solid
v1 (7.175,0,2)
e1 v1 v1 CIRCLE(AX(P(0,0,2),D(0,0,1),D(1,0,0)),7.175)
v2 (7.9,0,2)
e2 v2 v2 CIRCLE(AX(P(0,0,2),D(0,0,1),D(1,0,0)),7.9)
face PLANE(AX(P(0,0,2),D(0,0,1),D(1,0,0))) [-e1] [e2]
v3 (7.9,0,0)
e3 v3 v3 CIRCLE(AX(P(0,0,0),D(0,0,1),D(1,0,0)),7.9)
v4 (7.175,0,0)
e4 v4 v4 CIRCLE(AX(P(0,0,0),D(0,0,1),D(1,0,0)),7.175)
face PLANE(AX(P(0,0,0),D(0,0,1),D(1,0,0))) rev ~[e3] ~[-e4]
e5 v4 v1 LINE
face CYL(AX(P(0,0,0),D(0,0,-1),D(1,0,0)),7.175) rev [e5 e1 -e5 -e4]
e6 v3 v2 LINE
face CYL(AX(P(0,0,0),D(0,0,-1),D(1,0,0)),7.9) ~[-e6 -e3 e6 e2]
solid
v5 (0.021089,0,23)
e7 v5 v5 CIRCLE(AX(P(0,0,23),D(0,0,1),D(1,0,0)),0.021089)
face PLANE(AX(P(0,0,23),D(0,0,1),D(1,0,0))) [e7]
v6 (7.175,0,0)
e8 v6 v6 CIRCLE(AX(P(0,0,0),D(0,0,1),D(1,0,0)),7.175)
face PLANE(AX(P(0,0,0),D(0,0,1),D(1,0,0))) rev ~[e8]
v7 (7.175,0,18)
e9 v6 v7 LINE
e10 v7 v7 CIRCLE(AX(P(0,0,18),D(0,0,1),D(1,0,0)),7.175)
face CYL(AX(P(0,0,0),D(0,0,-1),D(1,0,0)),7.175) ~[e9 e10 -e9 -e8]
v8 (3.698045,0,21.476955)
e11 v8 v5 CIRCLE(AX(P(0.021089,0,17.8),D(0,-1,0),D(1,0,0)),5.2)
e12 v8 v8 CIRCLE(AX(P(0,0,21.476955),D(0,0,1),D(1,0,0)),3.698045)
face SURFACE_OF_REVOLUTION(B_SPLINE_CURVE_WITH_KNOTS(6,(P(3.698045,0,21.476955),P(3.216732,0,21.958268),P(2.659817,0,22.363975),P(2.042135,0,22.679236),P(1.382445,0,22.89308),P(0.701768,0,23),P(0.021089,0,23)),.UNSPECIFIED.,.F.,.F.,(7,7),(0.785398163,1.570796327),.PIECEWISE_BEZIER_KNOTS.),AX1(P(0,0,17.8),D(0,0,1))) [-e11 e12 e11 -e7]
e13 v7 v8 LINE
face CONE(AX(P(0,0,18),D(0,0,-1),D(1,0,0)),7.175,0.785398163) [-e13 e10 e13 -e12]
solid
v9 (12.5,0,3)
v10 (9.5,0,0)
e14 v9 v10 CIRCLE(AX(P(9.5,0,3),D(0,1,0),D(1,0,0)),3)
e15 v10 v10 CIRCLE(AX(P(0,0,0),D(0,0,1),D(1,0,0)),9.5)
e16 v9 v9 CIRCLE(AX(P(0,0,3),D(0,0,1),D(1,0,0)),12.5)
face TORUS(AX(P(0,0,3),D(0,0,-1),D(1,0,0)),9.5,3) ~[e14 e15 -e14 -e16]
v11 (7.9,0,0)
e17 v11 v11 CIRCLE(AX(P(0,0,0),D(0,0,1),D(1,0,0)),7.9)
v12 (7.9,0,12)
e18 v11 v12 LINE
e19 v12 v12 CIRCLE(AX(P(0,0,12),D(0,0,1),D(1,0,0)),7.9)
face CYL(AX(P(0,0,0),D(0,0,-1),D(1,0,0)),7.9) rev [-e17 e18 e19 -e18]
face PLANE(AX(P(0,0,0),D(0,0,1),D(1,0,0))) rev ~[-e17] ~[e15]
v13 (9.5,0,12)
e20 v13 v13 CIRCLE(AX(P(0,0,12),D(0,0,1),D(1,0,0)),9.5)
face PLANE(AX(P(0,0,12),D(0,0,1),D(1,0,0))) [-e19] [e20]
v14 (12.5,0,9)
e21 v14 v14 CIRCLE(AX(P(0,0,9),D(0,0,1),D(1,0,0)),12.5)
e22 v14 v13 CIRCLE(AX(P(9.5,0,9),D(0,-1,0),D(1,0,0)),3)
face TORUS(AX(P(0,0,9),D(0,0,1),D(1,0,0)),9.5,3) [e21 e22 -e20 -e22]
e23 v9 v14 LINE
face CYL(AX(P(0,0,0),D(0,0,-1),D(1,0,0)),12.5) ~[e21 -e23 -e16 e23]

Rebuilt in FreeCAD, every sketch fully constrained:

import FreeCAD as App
import Part
import Sketcher
Q = App.Units.Quantity


def edges_at(feature, points):
    """Names of the edges that pass closest to the given points."""
    edges = feature.Shape.Edges
    near = lambda p: min(range(len(edges)), key=lambda i: edges[i].distToShape(Part.Vertex(*p))[0])
    return sorted({f"Edge{near(p) + 1}" for p in points})

doc = App.newDocument("Part")
body = doc.addObject("PartDesign::Body", "Body")

sketch1 = body.newObject("Sketcher::SketchObject", "Sketch")
sketch1.AttachmentSupport = (doc.getObject("XY_Plane"), [""])
sketch1.MapMode = "FlatFace"
sketch1.addGeometry([
    Part.Circle(App.Vector(0, 0, 0), App.Vector(0, 0, 1), 12),
    Part.Circle(App.Vector(0, 0, 0), App.Vector(0, 0, 1), 8),
], False)
sketch1.addConstraint([
    Sketcher.Constraint("Coincident", 0, 3, -1, 1),
    Sketcher.Constraint("Coincident", 1, 3, -1, 1),
    Sketcher.Constraint("Diameter", 0, Q("25 mm")),
    Sketcher.Constraint("Diameter", 1, Q("15.8 mm")),
])
pad1 = body.newObject("PartDesign::Pad", "Pad")
pad1.Profile = sketch1
pad1.Length = 12
doc.recompute()

fillet = body.newObject("PartDesign::Fillet", "Fillet")
fillet.Base = (pad1, edges_at(pad1, [(-12.5, 0, 12), (-12.5, 0, 0)]))
fillet.Radius = 3
body2 = doc.addObject("PartDesign::Body", "Body001")

sketch2 = body2.newObject("Sketcher::SketchObject", "Sketch001")
sketch2.AttachmentSupport = (doc.getObject("XY_Plane001"), [""])
sketch2.MapMode = "FlatFace"
sketch2.addGeometry(Part.Circle(App.Vector(0, 0, 0), App.Vector(0, 0, 1), 7), False)
sketch2.addConstraint([
    Sketcher.Constraint("Coincident", 0, 3, -1, 1),
    Sketcher.Constraint("Diameter", 0, Q("14.35 mm")),
])
pad2 = body2.newObject("PartDesign::Pad", "Pad001")
pad2.Profile = sketch2
pad2.Length = 23
doc.recompute()

chamfer = body2.newObject("PartDesign::Chamfer", "Chamfer")
chamfer.Base = (pad2, edges_at(pad2, [(-7.175, 0, 23)]))
chamfer.Size = 5
doc.recompute()

fillet2 = body2.newObject("PartDesign::Fillet", "Fillet001")
fillet2.Base = (chamfer, edges_at(chamfer, [(-2.175, 0, 23)]))
fillet2.Radius = 5.2
body3 = doc.addObject("PartDesign::Body", "Body002")

sketch3 = body3.newObject("Sketcher::SketchObject", "Sketch002")
sketch3.AttachmentSupport = (doc.getObject("XY_Plane002"), [""])
sketch3.MapMode = "FlatFace"
sketch3.addGeometry([
    Part.Circle(App.Vector(0, 0, 0), App.Vector(0, 0, 1), 8),
    Part.Circle(App.Vector(0, 0, 0), App.Vector(0, 0, 1), 7),
], False)
sketch3.addConstraint([
    Sketcher.Constraint("Coincident", 0, 3, -1, 1),
    Sketcher.Constraint("Coincident", 1, 3, -1, 1),
    Sketcher.Constraint("Diameter", 0, Q("15.8 mm")),
    Sketcher.Constraint("Diameter", 1, Q("14.35 mm")),
])
pad3 = body3.newObject("PartDesign::Pad", "Pad002")
pad3.Profile = sketch3
pad3.Length = 2

doc.recompute()
